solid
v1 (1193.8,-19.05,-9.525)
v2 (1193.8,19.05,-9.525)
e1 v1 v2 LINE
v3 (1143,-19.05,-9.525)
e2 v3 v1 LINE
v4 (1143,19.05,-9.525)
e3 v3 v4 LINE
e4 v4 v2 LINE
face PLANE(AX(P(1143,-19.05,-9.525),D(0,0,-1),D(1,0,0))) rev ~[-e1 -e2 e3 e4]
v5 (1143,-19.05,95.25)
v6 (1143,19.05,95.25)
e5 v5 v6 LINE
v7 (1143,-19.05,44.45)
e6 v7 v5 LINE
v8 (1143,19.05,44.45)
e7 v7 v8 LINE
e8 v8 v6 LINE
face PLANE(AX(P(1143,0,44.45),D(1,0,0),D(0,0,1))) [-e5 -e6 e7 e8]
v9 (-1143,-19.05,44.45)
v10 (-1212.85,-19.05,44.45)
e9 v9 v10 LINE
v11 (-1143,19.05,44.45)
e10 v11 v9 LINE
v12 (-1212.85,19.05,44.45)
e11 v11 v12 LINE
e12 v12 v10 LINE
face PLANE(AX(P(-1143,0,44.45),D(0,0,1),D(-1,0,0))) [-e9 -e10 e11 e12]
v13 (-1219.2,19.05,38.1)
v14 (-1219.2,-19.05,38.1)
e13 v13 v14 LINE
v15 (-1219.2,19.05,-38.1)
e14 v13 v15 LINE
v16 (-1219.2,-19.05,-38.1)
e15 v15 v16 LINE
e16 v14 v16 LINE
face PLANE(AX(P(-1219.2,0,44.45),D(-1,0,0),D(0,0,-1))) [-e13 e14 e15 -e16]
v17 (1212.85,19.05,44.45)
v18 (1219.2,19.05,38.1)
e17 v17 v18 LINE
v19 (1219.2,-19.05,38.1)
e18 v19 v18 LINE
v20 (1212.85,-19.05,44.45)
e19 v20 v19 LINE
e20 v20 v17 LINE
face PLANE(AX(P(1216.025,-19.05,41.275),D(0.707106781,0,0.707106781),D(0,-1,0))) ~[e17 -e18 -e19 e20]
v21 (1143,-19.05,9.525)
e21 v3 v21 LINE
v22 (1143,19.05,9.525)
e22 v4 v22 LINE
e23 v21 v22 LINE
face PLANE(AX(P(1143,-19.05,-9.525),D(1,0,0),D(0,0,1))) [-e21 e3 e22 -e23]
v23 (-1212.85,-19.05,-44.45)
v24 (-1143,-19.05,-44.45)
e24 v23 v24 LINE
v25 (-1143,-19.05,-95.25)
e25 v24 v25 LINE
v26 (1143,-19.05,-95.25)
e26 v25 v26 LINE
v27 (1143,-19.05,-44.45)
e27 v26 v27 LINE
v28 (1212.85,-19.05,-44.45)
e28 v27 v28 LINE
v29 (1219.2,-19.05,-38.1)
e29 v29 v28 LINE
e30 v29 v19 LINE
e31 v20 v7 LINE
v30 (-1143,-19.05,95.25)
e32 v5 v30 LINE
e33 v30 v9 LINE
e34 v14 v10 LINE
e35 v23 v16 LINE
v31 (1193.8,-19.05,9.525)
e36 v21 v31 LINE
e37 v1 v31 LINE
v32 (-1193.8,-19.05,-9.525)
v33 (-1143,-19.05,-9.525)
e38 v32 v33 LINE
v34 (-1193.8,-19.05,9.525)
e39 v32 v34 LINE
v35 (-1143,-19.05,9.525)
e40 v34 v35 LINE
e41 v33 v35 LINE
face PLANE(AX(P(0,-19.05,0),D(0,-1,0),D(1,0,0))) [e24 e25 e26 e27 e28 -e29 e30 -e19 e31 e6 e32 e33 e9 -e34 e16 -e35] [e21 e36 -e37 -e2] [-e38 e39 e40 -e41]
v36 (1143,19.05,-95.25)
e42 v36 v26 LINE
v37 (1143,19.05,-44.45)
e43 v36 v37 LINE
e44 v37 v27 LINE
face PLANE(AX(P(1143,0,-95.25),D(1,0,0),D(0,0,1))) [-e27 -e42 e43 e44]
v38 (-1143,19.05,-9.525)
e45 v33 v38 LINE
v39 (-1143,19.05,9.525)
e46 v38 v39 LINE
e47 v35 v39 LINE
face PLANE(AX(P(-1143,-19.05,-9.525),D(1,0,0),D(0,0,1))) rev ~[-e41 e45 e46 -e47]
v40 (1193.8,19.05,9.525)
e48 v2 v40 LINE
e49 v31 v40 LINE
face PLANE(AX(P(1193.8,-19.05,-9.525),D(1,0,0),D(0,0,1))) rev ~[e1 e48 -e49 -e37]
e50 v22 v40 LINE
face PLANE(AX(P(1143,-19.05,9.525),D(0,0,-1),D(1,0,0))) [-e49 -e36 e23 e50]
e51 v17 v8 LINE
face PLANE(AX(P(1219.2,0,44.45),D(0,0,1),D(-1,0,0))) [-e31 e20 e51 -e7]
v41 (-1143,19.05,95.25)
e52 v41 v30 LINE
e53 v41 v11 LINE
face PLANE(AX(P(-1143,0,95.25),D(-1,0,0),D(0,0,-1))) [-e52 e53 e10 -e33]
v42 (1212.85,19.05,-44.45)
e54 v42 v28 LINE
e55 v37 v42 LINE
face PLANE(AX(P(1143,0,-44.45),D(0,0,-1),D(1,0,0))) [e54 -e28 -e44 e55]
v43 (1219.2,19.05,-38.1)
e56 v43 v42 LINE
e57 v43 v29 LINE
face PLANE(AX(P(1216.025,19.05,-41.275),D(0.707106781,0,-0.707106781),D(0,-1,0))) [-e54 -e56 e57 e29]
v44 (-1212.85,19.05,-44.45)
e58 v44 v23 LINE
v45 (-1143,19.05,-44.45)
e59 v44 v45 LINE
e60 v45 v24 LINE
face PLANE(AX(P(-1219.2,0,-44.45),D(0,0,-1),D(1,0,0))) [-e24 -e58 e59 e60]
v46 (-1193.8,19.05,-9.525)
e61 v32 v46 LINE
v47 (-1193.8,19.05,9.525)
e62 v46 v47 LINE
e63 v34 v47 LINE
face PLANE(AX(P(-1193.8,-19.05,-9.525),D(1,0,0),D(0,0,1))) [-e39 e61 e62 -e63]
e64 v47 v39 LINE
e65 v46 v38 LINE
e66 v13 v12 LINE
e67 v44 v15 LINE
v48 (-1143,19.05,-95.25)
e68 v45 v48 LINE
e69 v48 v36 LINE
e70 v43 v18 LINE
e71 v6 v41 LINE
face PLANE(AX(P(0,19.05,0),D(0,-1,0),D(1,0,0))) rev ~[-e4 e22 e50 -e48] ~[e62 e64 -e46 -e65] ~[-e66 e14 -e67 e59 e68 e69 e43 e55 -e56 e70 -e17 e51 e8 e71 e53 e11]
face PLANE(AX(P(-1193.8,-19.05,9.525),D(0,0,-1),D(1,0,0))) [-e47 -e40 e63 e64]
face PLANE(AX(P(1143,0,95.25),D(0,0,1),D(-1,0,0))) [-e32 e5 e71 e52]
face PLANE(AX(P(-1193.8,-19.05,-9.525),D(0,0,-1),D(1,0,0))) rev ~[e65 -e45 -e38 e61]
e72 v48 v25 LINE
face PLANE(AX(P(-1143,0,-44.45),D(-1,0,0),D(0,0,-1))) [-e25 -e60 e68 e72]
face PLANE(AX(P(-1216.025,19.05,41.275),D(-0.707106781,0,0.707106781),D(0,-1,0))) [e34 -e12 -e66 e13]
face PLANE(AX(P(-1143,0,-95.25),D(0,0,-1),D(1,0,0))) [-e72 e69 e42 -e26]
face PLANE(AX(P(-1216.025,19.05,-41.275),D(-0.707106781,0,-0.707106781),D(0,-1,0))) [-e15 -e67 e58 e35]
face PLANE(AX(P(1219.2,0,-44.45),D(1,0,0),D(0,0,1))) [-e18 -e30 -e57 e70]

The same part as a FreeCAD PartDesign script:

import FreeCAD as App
import Part
import Sketcher
from FreeCAD import Vector
Q = App.Units.Quantity


def edges_at(feature, points):
    """Names of the edges that pass closest to the given points."""
    edges = feature.Shape.Edges
    near = lambda p: min(range(len(edges)), key=lambda i: edges[i].distToShape(Part.Vertex(*p))[0])
    return sorted({f"Edge{near(p) + 1}" for p in points})

doc = App.newDocument("Part")
body = doc.addObject("PartDesign::Body", "Body")

sketch1 = body.newObject("Sketcher::SketchObject", "Sketch")
sketch1.AttachmentSupport = (doc.getObject("XZ_Plane"), [""])
sketch1.MapMode = "FlatFace"
sketch1.addGeometry([
    Part.LineSegment(Vector(1143, 95, 0), Vector(-1143, 95, 0)),
    Part.LineSegment(Vector(-1143, 95, 0), Vector(-1143, 44, 0)),
    Part.LineSegment(Vector(-1143, 44, 0), Vector(-1219, 44, 0)),
    Part.LineSegment(Vector(-1219, 44, 0), Vector(-1219, -44, 0)),
    Part.LineSegment(Vector(-1219, -44, 0), Vector(-1143, -44, 0)),
    Part.LineSegment(Vector(-1143, -44, 0), Vector(-1143, -95, 0)),
    Part.LineSegment(Vector(-1143, -95, 0), Vector(1143, -95, 0)),
    Part.LineSegment(Vector(1143, -95, 0), Vector(1143, -44, 0)),
    Part.LineSegment(Vector(1143, -44, 0), Vector(1219, -44, 0)),
    Part.LineSegment(Vector(1219, -44, 0), Vector(1219, 44, 0)),
    Part.LineSegment(Vector(1219, 44, 0), Vector(1143, 44, 0)),
    Part.LineSegment(Vector(1143, 44, 0), Vector(1143, 95, 0)),
], False)
sketch1.addConstraint([
    Sketcher.Constraint("Coincident", 0, 2, 1, 1),
    Sketcher.Constraint("Coincident", 1, 2, 2, 1),
    Sketcher.Constraint("Coincident", 2, 2, 3, 1),
    Sketcher.Constraint("Coincident", 3, 2, 4, 1),
    Sketcher.Constraint("Coincident", 4, 2, 5, 1),
    Sketcher.Constraint("Coincident", 5, 2, 6, 1),
    Sketcher.Constraint("Coincident", 6, 2, 7, 1),
    Sketcher.Constraint("Coincident", 7, 2, 8, 1),
    Sketcher.Constraint("Coincident", 8, 2, 9, 1),
    Sketcher.Constraint("Coincident", 9, 2, 10, 1),
    Sketcher.Constraint("Coincident", 10, 2, 11, 1),
    Sketcher.Constraint("Coincident", 11, 2, 0, 1),
    Sketcher.Constraint("Horizontal", 0),
    Sketcher.Constraint("Vertical", 1),
    Sketcher.Constraint("Horizontal", 2),
    Sketcher.Constraint("Vertical", 3),
    Sketcher.Constraint("Horizontal", 4),
    Sketcher.Constraint("Vertical", 5),
    Sketcher.Constraint("Horizontal", 6),
    Sketcher.Constraint("Vertical", 7),
    Sketcher.Constraint("Horizontal", 8),
    Sketcher.Constraint("Vertical", 9),
    Sketcher.Constraint("Horizontal", 10),
    Sketcher.Constraint("Vertical", 11),
    Sketcher.Constraint("Symmetric", 0, 2, 6, 2, -1, 1),
    Sketcher.Constraint("Symmetric", 2, 2, 8, 2, -1, 1),
    Sketcher.Constraint("Symmetric", 4, 2, 10, 2, -1, 1),
    Sketcher.Constraint("Symmetric", 4, 2, 7, 2, -2),
    Sketcher.Constraint("DistanceX", 0, 2, 0, 1, Q("90 in")),
    Sketcher.Constraint("DistanceX", 2, 2, 2, 1, Q("3 in")),
    Sketcher.Constraint("DistanceY", 1, 2, 1, 1, Q("2 in")),
    Sketcher.Constraint("DistanceY", 3, 2, 3, 1, Q("3.5 in")),
])
pad1 = body.newObject("PartDesign::Pad", "Pad")
pad1.Profile = sketch1
pad1.Type = "TwoLengths"
pad1.Length = Q("0.75 in")
pad1.Length2 = Q("0.75 in")
doc.recompute()

chamfer = body.newObject("PartDesign::Chamfer", "Chamfer")
chamfer.Base = (pad1, edges_at(pad1, [
    (1219.2, 0, 44.45),
    (1219.2, 0, -44.45),
    (-1219.2, 0, 44.45),
    (-1219.2, 0, -44.45),
]))
chamfer.Size = Q("0.25 in")

sketch2 = body.newObject("Sketcher::SketchObject", "Sketch001")
sketch2.AttachmentSupport = (doc.getObject("XZ_Plane"), [""])
sketch2.MapMode = "FlatFace"
sketch2.AttachmentOffset = App.Placement(Vector(0, 0, 0.75 * 25.4), App.Rotation())
sketch2.addGeometry([
    Part.LineSegment(Vector(1143, 10, 0), Vector(1143, -10, 0)),
    Part.LineSegment(Vector(1143, -10, 0), Vector(1194, -10, 0)),
    Part.LineSegment(Vector(1194, -10, 0), Vector(1194, 10, 0)),
    Part.LineSegment(Vector(1194, 10, 0), Vector(1143, 10, 0)),
    Part.LineSegment(Vector(-1194, 10, 0), Vector(-1194, -10, 0)),
    Part.LineSegment(Vector(-1194, -10, 0), Vector(-1143, -10, 0)),
    Part.LineSegment(Vector(-1143, -10, 0), Vector(-1143, 10, 0)),
    Part.LineSegment(Vector(-1143, 10, 0), Vector(-1194, 10, 0)),
], False)
sketch2.addConstraint([
    Sketcher.Constraint("Coincident", 0, 2, 1, 1),
    Sketcher.Constraint("Coincident", 1, 2, 2, 1),
    Sketcher.Constraint("Coincident", 2, 2, 3, 1),
    Sketcher.Constraint("Coincident", 3, 2, 0, 1),
    Sketcher.Constraint("Coincident", 4, 2, 5, 1),
    Sketcher.Constraint("Coincident", 5, 2, 6, 1),
    Sketcher.Constraint("Coincident", 6, 2, 7, 1),
    Sketcher.Constraint("Coincident", 7, 2, 4, 1),
    Sketcher.Constraint("Vertical", 0),
    Sketcher.Constraint("Horizontal", 1),
    Sketcher.Constraint("Vertical", 2),
    Sketcher.Constraint("Horizontal", 3),
    Sketcher.Constraint("Vertical", 4),
    Sketcher.Constraint("Horizontal", 5),
    Sketcher.Constraint("Vertical", 6),
    Sketcher.Constraint("Horizontal", 7),
    Sketcher.Constraint("Symmetric", 2, 2, 4, 2, -1, 1),
    Sketcher.Constraint("Symmetric", 0, 2, 6, 2, -1, 1),
    Sketcher.Constraint("Horizontal", 1, 2, 4, 2),
    Sketcher.Constraint("DistanceX", 1, 1, 1, 2, Q("2 in")),
    Sketcher.Constraint("DistanceX", -1, 1, 0, 2, Q("45 in")),
    Sketcher.Constraint("DistanceY", 0, 2, 0, 1, Q("0.75 in")),
])
pocket1 = body.newObject("PartDesign::Pocket", "Pocket")
pocket1.Profile = sketch2
pocket1.Type = "ThroughAll"

doc.recompute()
